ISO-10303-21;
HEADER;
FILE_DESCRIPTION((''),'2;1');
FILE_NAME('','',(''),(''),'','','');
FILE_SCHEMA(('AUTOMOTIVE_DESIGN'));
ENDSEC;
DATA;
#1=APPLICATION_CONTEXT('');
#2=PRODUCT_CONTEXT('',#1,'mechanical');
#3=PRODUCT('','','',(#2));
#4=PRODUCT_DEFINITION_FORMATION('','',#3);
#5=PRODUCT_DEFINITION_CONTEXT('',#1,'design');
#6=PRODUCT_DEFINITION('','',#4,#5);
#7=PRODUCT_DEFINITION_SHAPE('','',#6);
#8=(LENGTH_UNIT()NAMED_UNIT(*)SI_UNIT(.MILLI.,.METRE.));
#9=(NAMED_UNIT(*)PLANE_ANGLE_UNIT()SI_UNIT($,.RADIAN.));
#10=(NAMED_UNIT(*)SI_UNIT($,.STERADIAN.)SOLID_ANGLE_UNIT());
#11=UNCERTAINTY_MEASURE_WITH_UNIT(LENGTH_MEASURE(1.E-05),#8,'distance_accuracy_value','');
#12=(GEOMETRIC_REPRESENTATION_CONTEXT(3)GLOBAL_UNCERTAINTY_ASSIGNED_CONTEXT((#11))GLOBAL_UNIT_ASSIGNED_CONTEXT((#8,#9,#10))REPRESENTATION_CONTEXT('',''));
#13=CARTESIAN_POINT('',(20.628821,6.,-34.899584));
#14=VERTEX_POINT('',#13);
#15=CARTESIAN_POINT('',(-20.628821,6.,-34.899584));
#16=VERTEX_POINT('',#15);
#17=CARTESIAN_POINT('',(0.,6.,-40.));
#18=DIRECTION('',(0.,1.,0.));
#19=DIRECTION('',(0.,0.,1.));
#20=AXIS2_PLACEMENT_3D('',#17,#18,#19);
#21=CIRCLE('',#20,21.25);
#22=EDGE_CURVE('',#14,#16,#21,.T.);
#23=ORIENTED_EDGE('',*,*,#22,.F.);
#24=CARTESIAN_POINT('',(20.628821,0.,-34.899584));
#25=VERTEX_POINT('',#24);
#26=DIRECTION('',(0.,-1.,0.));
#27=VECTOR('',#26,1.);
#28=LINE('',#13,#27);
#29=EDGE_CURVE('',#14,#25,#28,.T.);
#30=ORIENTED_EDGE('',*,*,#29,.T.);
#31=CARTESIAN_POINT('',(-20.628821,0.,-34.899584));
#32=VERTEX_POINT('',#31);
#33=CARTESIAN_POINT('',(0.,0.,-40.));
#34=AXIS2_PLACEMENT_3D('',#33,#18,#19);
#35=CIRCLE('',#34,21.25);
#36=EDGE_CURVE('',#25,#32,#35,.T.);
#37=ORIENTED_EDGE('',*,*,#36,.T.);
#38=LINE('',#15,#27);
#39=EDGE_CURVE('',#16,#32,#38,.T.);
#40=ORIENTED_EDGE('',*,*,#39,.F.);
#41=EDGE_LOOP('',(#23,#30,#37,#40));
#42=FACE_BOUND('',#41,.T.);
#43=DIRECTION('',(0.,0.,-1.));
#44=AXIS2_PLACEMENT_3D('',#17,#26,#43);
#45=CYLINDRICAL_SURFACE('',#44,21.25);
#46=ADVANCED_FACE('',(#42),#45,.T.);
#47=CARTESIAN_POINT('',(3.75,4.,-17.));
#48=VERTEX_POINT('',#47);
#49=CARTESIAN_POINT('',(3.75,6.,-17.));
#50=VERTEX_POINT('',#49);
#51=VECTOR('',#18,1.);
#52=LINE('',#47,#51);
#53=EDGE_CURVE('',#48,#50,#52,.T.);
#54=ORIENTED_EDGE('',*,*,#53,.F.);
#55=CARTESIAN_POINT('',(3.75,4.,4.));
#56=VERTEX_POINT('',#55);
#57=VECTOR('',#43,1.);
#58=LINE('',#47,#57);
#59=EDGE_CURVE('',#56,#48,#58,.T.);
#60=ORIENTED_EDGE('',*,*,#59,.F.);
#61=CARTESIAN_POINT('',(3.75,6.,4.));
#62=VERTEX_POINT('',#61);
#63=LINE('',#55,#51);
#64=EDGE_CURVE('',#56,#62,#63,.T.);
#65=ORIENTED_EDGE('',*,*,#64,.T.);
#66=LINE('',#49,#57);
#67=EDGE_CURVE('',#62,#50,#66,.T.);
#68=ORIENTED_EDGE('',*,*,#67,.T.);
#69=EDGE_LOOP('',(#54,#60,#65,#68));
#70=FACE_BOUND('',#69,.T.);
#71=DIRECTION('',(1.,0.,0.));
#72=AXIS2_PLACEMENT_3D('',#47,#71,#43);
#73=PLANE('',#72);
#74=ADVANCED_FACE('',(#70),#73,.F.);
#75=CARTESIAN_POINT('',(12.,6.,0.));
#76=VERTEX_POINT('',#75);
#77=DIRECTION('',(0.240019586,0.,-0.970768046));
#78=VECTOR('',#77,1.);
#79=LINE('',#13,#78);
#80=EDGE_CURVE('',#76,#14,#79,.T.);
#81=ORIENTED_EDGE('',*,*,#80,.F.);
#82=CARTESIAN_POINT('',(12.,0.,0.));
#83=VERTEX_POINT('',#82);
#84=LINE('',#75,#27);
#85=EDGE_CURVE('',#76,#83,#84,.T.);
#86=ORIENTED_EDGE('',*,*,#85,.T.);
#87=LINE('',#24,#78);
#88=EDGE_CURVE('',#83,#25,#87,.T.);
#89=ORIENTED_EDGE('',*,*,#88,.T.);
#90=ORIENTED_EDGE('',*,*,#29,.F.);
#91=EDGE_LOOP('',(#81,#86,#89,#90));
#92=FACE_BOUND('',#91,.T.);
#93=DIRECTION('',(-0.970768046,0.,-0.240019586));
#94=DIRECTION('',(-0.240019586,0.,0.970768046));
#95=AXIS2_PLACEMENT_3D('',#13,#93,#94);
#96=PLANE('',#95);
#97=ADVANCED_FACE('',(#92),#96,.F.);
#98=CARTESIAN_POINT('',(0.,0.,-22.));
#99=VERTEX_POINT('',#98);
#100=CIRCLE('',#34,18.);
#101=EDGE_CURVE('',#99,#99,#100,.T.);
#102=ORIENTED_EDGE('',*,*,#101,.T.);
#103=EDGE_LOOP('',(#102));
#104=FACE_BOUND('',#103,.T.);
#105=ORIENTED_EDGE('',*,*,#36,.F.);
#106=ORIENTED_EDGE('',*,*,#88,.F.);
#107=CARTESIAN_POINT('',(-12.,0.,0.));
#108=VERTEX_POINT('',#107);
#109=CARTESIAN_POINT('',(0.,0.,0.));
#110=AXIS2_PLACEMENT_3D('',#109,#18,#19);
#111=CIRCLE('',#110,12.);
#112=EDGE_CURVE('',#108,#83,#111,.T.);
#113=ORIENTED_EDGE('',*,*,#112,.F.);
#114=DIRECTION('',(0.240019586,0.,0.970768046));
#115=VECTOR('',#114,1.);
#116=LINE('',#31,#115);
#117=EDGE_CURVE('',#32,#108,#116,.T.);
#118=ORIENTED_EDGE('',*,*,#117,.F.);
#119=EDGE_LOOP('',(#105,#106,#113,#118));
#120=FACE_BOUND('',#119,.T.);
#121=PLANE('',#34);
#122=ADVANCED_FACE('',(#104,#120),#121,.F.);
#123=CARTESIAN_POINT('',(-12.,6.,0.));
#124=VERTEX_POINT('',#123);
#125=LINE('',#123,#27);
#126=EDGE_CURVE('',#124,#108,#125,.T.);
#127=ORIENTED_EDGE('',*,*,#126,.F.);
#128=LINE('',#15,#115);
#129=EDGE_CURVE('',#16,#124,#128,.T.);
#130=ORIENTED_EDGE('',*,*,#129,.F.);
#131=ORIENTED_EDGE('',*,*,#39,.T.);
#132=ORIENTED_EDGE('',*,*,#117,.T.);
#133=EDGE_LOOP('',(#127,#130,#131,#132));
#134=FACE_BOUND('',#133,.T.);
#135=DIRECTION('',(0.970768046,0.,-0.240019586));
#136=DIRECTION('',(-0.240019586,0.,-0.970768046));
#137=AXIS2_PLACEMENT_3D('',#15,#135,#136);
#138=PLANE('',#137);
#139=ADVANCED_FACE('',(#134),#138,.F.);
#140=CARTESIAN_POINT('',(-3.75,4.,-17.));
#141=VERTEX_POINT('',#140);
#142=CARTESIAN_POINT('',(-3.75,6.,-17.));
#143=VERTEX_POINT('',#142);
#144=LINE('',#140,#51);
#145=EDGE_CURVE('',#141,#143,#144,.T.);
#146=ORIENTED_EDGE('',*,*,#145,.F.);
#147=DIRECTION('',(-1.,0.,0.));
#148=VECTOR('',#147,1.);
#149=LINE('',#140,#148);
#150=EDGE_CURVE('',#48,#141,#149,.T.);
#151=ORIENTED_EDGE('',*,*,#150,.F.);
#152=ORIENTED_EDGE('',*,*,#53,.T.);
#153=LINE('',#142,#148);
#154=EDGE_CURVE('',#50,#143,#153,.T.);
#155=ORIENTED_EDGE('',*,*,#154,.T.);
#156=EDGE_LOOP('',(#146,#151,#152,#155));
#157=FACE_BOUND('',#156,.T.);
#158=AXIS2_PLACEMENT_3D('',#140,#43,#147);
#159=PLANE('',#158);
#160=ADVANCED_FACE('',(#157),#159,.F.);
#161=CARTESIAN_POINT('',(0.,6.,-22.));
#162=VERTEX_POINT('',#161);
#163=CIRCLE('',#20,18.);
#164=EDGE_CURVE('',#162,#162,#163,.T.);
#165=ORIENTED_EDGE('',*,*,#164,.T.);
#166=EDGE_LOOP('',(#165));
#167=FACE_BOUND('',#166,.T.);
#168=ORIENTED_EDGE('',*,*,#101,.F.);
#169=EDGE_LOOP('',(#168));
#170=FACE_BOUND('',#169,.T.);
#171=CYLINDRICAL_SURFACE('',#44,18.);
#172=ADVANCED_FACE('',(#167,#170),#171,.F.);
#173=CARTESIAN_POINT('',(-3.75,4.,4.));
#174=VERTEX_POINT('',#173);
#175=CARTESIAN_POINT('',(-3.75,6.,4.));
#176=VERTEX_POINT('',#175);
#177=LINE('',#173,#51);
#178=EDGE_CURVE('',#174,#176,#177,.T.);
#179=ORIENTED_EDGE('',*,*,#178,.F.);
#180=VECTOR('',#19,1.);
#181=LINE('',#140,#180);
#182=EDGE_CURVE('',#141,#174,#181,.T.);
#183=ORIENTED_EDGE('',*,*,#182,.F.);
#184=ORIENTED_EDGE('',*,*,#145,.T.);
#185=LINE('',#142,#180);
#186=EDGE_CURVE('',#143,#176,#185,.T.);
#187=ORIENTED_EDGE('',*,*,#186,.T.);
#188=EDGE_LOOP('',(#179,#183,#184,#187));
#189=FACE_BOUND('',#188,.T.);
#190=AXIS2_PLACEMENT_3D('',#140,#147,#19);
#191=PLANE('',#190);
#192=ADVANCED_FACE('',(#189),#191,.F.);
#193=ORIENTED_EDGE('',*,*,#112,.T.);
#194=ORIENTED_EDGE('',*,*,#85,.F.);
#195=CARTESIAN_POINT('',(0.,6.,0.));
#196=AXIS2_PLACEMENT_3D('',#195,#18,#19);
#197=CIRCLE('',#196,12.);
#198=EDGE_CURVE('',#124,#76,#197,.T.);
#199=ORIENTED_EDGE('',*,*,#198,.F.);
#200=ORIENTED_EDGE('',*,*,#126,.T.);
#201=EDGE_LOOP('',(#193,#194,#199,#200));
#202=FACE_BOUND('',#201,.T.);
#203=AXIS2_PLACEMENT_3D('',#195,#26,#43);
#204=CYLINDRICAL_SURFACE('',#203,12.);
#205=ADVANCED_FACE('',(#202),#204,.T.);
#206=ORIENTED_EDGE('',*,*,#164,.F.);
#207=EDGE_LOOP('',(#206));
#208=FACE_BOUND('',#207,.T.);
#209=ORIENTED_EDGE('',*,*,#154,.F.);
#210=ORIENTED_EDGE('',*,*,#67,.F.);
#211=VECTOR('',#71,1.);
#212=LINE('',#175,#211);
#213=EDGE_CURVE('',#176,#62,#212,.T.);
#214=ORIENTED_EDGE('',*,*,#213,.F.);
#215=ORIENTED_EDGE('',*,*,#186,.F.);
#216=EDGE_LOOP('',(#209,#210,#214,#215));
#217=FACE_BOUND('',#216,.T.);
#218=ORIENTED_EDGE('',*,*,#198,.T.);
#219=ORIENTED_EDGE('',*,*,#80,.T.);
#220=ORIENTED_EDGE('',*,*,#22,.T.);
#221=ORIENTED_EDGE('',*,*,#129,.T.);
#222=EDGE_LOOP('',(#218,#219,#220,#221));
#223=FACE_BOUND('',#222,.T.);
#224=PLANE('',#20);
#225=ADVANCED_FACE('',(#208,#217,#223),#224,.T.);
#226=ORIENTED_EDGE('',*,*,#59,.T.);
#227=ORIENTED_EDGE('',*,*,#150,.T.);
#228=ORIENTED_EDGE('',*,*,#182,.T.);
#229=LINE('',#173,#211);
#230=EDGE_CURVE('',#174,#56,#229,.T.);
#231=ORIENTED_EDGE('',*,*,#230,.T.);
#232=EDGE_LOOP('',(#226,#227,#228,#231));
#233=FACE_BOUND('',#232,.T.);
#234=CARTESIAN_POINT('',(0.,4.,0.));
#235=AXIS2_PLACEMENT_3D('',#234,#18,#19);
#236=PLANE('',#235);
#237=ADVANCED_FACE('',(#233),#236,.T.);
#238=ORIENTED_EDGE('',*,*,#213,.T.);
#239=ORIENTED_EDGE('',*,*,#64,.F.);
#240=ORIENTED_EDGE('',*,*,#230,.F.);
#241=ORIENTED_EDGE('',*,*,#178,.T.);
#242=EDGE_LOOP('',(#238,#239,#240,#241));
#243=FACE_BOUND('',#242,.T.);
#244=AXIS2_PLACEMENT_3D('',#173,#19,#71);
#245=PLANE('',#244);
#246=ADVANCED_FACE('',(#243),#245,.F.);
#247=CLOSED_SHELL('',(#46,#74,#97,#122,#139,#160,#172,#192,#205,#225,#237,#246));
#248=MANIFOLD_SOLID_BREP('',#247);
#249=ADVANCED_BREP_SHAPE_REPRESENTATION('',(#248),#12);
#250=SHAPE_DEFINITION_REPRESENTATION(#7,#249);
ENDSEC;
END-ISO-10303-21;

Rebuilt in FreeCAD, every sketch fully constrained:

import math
import FreeCAD as App
import Part
import Sketcher

V = App.Vector


def add_polygon(sketch, points):
    """Adds a closed chain of lines whose ends are joined by coincident constraints."""
    first, n = sketch.GeometryCount, len(points)
    for a, b in zip(points, points[1:] + points[:1]):
        sketch.addGeometry(Part.LineSegment(App.Vector(*a, 0), App.Vector(*b, 0)), False)
    for i in range(n):
        sketch.addConstraint(Sketcher.Constraint("Coincident", first + i, 2, first + (i + 1) % n, 1))

doc = App.newDocument("Part")
params = doc.addObject("Spreadsheet::Sheet", "Params")
for row, (alias, value) in enumerate([
    ("sketch1_diameter", "36 mm"),
    ("sketch1_radius", "12 mm"),
    ("sketch1_radius2", "21.25 mm"),
    ("pad1_length", "6 mm"),
    ("sketch2_height", "21 mm"),
    ("sketch2_width", "7.5 mm"),
    ("pocket1_length", "2 mm"),
], start=1):
    params.set(f"A{row}", alias)
    params.set(f"B{row}", "=" + value)
    params.setAlias(f"B{row}", alias)

body = doc.addObject("PartDesign::Body", "Body")

# Sketch on XZ plane
sketch1 = body.newObject("Sketcher::SketchObject", "Sketch")
sketch1.AttachmentSupport = (doc.getObject("XZ_Plane"), [""])
sketch1.MapMode = "FlatFace"
sketch1.addGeometry([
    Part.LineSegment(V(-21, -35, 0), V(-12, 0, 0)),  # 0
    Part.ArcOfCircle(Part.Circle(V(0, 0, 0), V(0, 0, 1), 12), math.radians(0), math.radians(180)),  # 1
    Part.LineSegment(V(12, 0, 0), V(21, -35, 0)),  # 2
    Part.ArcOfCircle(Part.Circle(V(0, -40, 0), V(0, 0, 1), 21), math.radians(166), math.radians(374)),  # 3
    Part.Circle(V(0, -40, 0), V(0, 0, 1), 18),  # 4
], False)
sketch1.addConstraint([
    Sketcher.Constraint("Coincident", 0, 2, 1, 2),
    Sketcher.Constraint("Coincident", 1, 1, 2, 1),
    Sketcher.Constraint("Tangent", 2, 2, 3, 2),
    Sketcher.Constraint("Tangent", 3, 1, 0, 1),
    Sketcher.Constraint("Coincident", 1, 3, -1, 1),
    Sketcher.Constraint("Coincident", 4, 3, 3, 3),
    Sketcher.Constraint("Symmetric", 2, 2, 3, 1, -2),
    Sketcher.Constraint("PointOnObject", 0, 2, -1),
    Sketcher.Constraint("Diameter", 4, 36.0),
    Sketcher.Constraint("Radius", 1, 12.0),
    Sketcher.Constraint("Radius", 3, 21.25),
    Sketcher.Constraint("DistanceY", 3, 3, -1, 1, 40.0),
])
sketch1.setExpression("Constraints[8]", "Params.sketch1_diameter")
sketch1.setExpression("Constraints[9]", "Params.sketch1_radius")
sketch1.setExpression("Constraints[10]", "Params.sketch1_radius2")
pad1 = body.newObject("PartDesign::Pad", "Pad")
pad1.Profile = sketch1
pad1.setExpression("Length", "Params.pad1_length")
pad1.Reversed = True

# Sketch on XZ plane
sketch2 = body.newObject("Sketcher::SketchObject", "Sketch001")
sketch2.AttachmentSupport = (doc.getObject("XZ_Plane"), [""])
sketch2.MapMode = "FlatFace"
sketch2.AttachmentOffset = App.Placement(V(0, 0, -6), App.Rotation())
add_polygon(sketch2, [(-4, -17), (-4, 4), (4, 4), (4, -17)])  # lines 0-3
sketch2.addConstraint([
    Sketcher.Constraint("Vertical", 0),
    Sketcher.Constraint("Horizontal", 1),
    Sketcher.Constraint("Vertical", 2),
    Sketcher.Constraint("Horizontal", 3),
    Sketcher.Constraint("DistanceY", 0, 1, 0, 2, 21.0),
    Sketcher.Constraint("DistanceX", 1, 1, 1, 2, 7.5),
    Sketcher.Constraint("DistanceY", -1, 1, 0, 2, 4.0),
    Sketcher.Constraint("DistanceX", 0, 2, -1, 1, 3.75),
])
sketch2.setExpression("Constraints[8]", "Params.sketch2_height")
sketch2.setExpression("Constraints[9]", "Params.sketch2_width")
pocket1 = body.newObject("PartDesign::Pocket", "Pocket")
pocket1.Profile = sketch2
pocket1.setExpression("Length", "Params.pocket1_length")
pocket1.Reversed = True

doc.recompute()
